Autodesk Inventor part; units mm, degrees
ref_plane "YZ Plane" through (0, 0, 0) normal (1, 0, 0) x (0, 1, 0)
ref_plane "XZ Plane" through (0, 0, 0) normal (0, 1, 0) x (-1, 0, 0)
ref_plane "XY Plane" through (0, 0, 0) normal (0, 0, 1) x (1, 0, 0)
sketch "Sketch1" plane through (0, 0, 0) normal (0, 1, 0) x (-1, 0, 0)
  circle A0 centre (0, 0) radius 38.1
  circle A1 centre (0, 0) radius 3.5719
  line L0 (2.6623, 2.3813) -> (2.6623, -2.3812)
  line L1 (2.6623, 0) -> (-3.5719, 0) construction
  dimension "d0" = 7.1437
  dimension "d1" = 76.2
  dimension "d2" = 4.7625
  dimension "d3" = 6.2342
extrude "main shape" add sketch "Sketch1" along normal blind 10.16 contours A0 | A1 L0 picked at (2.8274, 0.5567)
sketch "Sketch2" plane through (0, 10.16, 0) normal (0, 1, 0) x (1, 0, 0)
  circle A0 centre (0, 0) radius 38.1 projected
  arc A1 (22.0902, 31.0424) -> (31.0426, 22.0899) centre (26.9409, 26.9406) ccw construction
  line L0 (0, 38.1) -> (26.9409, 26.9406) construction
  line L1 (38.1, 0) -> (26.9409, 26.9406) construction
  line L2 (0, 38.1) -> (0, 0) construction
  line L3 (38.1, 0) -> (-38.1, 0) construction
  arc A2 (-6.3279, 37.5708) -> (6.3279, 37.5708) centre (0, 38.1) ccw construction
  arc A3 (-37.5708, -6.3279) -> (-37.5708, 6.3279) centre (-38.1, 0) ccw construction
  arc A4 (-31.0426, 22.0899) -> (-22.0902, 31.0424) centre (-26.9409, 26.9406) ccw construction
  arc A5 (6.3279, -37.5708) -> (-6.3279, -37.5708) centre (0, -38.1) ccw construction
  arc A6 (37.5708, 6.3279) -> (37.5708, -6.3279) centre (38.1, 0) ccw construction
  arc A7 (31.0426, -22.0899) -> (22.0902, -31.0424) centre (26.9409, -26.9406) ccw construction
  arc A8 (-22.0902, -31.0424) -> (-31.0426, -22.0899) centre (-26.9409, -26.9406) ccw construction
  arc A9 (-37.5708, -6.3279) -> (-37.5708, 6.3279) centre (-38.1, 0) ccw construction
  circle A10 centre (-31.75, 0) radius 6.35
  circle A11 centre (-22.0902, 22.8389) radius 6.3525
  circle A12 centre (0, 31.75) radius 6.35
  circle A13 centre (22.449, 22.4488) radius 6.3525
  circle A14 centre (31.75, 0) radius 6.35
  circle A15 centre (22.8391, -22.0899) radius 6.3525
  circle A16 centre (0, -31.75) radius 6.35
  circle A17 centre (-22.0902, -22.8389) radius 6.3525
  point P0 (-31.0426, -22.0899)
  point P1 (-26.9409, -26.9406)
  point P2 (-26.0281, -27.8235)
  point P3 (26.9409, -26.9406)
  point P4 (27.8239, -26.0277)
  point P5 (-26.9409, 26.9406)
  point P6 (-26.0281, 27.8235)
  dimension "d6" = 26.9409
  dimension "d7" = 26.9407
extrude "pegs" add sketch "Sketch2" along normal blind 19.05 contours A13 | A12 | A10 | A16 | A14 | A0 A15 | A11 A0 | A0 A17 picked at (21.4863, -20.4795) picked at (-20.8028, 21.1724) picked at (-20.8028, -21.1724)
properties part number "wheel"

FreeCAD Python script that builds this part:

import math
import FreeCAD as App
import Part
import Sketcher
from FreeCAD import Vector
Q = App.Units.Quantity

doc = App.newDocument("Part")
body = doc.addObject("PartDesign::Body", "Body")

# Sketch on XZ plane
sketch1 = body.newObject("Sketcher::SketchObject", "Sketch")
sketch1.AttachmentSupport = (doc.getObject("XZ_Plane"), [""])
sketch1.MapMode = "FlatFace"
sketch1.addGeometry(Part.Circle(Vector(0, 0, 0), Vector(0, 0, 1), 38.1), False)
sketch1.addGeometry(Part.ArcOfCircle(Part.Circle(Vector(0, 0, 0), Vector(0, 0, 1), 3.6), math.radians(-138), math.radians(138)), False)
sketch1.addGeometry(Part.LineSegment(Vector(-2.7, -2.4, 0), Vector(-2.7, 2.4, 0)), False)
sketch1.addConstraint(Sketcher.Constraint("Coincident", 1, 1, 2, 1))
sketch1.addConstraint(Sketcher.Constraint("Coincident", 2, 2, 1, 2))
sketch1.addConstraint(Sketcher.Constraint("Vertical", 2))
sketch1.addConstraint(Sketcher.Constraint("Coincident", 0, 3, -1, 1))
sketch1.addConstraint(Sketcher.Constraint("Coincident", 1, 3, -1, 1))
sketch1.addConstraint(Sketcher.Constraint("Diameter", 0, Q("3 in")))
sketch1.addConstraint(Sketcher.Constraint("Radius", 1, Q("0.1406299 in")))
sketch1.addConstraint(Sketcher.Constraint("DistanceY", 2, 1, 2, 2, Q("0.1875 in")))
pad1 = body.newObject("PartDesign::Pad", "Pad")
pad1.Profile = sketch1
pad1.Length = Q("0.4 in")
pad1.Reversed = True

# Sketch on XZ plane
sketch2 = body.newObject("Sketcher::SketchObject", "Sketch001")
sketch2.AttachmentSupport = (doc.getObject("XZ_Plane"), [""])
sketch2.MapMode = "FlatFace"
sketch2.AttachmentOffset = App.Placement(Vector(0, 0, -0.4 * 25.4), App.Rotation())
sketch2.addGeometry(Part.Circle(Vector(22.4, -22.4, 0), Vector(0, 0, 1), 6.4), False)
sketch2.addGeometry(Part.Circle(Vector(0, -31.8, 0), Vector(0, 0, 1), 6.3), False)
sketch2.addGeometry(Part.Circle(Vector(-31.8, 0, 0), Vector(0, 0, 1), 6.3), False)
sketch2.addGeometry(Part.Circle(Vector(0, 31.8, 0), Vector(0, 0, 1), 6.3), False)
sketch2.addGeometry(Part.Circle(Vector(31.8, 0, 0), Vector(0, 0, 1), 6.3), False)
sketch2.addGeometry(Part.ArcOfCircle(Part.Circle(Vector(0, 0, 0), Vector(0, 0, 1), 38.1), math.radians(43.09), math.radians(45)), False)
sketch2.addGeometry(Part.ArcOfCircle(Part.Circle(Vector(22.8, 22.1, 0), Vector(0, 0, 1), 6.4), math.radians(50), math.radians(398)), False)
sketch2.addGeometry(Part.ArcOfCircle(Part.Circle(Vector(-22.1, -22.8, 0), Vector(0, 0, 1), 6.4), math.radians(-128), math.radians(220)), False)
sketch2.addGeometry(Part.ArcOfCircle(Part.Circle(Vector(0, 0, 0), Vector(0, 0, 1), 38.1), math.radians(-135), math.radians(-133.09)), False)
sketch2.addGeometry(Part.ArcOfCircle(Part.Circle(Vector(0, 0, 0), Vector(0, 0, 1), 38.1), math.radians(133.09), math.radians(135)), False)
sketch2.addGeometry(Part.ArcOfCircle(Part.Circle(Vector(-22.1, 22.8, 0), Vector(0, 0, 1), 6.4), math.radians(140), math.radians(488)), False)
sketch2.addConstraint(Sketcher.Constraint("Coincident", 5, 1, 6, 2))
sketch2.addConstraint(Sketcher.Constraint("Coincident", 6, 1, 5, 2))
sketch2.addConstraint(Sketcher.Constraint("Coincident", 7, 1, 8, 2))
sketch2.addConstraint(Sketcher.Constraint("Coincident", 8, 1, 7, 2))
sketch2.addConstraint(Sketcher.Constraint("Coincident", 9, 1, 10, 2))
sketch2.addConstraint(Sketcher.Constraint("Coincident", 10, 1, 9, 2))
sketch2.addConstraint(Sketcher.Constraint("Coincident", 5, 3, -1, 1))
sketch2.addConstraint(Sketcher.Constraint("Coincident", 8, 3, -1, 1))
sketch2.addConstraint(Sketcher.Constraint("Coincident", 9, 3, -1, 1))
sketch2.addConstraint(Sketcher.Constraint("Equal", 1, 2))
sketch2.addConstraint(Sketcher.Constraint("Equal", 2, 3))
sketch2.addConstraint(Sketcher.Constraint("Equal", 3, 4))
sketch2.addConstraint(Sketcher.Constraint("Equal", 0, 6))
sketch2.addConstraint(Sketcher.Constraint("Equal", 6, 7))
sketch2.addConstraint(Sketcher.Constraint("Equal", 5, 8))
sketch2.addConstraint(Sketcher.Constraint("Equal", 8, 9))
sketch2.addConstraint(Sketcher.Constraint("Equal", 7, 10))
sketch2.addConstraint(Sketcher.Constraint("Symmetric", 1, 3, 3, 3, -1, 1))
sketch2.addConstraint(Sketcher.Constraint("Symmetric", 2, 3, 4, 3, -1, 1))
sketch2.addConstraint(Sketcher.Constraint("Symmetric", 7, 3, 10, 3, -1))
sketch2.addConstraint(Sketcher.Constraint("PointOnObject", 1, 3, -2))
sketch2.addConstraint(Sketcher.Constraint("PointOnObject", 2, 3, -1))
sketch2.addConstraint(Sketcher.Constraint("Diameter", 1, Q("0.5 in")))
sketch2.addConstraint(Sketcher.Constraint("Radius", 5, Q("1.5 in")))
sketch2.addConstraint(Sketcher.Constraint("Diameter", 0, Q("0.5002 in")))
sketch2.addConstraint(Sketcher.Constraint("DistanceY", 1, 3, 3, 3, Q("2.5 in")))
sketch2.addConstraint(Sketcher.Constraint("DistanceX", 2, 3, 4, 3, Q("2.5 in")))
sketch2.addConstraint(Sketcher.Constraint("DistanceX", -1, 1, 6, 1, 26.941))
sketch2.addConstraint(Sketcher.Constraint("DistanceX", 8, 1, -1, 1, 26.9414))
sketch2.addConstraint(Sketcher.Constraint("DistanceX", 8, 1, 7, 3, Q("0.191 in")))
sketch2.addConstraint(Sketcher.Constraint("DistanceY", 0, 3, -1, 1, Q("0.8838 in")))
sketch2.addConstraint(Sketcher.Constraint("DistanceY", 0, 3, 6, 3, Q("1.7535 in")))
sketch2.addConstraint(Sketcher.Constraint("DistanceX", 7, 3, 0, 3, Q("1.7535 in")))
pad2 = body.newObject("PartDesign::Pad", "Pad001")
pad2.Profile = sketch2
pad2.Length = Q("0.75 in")
pad2.Reversed = True

doc.recompute()
